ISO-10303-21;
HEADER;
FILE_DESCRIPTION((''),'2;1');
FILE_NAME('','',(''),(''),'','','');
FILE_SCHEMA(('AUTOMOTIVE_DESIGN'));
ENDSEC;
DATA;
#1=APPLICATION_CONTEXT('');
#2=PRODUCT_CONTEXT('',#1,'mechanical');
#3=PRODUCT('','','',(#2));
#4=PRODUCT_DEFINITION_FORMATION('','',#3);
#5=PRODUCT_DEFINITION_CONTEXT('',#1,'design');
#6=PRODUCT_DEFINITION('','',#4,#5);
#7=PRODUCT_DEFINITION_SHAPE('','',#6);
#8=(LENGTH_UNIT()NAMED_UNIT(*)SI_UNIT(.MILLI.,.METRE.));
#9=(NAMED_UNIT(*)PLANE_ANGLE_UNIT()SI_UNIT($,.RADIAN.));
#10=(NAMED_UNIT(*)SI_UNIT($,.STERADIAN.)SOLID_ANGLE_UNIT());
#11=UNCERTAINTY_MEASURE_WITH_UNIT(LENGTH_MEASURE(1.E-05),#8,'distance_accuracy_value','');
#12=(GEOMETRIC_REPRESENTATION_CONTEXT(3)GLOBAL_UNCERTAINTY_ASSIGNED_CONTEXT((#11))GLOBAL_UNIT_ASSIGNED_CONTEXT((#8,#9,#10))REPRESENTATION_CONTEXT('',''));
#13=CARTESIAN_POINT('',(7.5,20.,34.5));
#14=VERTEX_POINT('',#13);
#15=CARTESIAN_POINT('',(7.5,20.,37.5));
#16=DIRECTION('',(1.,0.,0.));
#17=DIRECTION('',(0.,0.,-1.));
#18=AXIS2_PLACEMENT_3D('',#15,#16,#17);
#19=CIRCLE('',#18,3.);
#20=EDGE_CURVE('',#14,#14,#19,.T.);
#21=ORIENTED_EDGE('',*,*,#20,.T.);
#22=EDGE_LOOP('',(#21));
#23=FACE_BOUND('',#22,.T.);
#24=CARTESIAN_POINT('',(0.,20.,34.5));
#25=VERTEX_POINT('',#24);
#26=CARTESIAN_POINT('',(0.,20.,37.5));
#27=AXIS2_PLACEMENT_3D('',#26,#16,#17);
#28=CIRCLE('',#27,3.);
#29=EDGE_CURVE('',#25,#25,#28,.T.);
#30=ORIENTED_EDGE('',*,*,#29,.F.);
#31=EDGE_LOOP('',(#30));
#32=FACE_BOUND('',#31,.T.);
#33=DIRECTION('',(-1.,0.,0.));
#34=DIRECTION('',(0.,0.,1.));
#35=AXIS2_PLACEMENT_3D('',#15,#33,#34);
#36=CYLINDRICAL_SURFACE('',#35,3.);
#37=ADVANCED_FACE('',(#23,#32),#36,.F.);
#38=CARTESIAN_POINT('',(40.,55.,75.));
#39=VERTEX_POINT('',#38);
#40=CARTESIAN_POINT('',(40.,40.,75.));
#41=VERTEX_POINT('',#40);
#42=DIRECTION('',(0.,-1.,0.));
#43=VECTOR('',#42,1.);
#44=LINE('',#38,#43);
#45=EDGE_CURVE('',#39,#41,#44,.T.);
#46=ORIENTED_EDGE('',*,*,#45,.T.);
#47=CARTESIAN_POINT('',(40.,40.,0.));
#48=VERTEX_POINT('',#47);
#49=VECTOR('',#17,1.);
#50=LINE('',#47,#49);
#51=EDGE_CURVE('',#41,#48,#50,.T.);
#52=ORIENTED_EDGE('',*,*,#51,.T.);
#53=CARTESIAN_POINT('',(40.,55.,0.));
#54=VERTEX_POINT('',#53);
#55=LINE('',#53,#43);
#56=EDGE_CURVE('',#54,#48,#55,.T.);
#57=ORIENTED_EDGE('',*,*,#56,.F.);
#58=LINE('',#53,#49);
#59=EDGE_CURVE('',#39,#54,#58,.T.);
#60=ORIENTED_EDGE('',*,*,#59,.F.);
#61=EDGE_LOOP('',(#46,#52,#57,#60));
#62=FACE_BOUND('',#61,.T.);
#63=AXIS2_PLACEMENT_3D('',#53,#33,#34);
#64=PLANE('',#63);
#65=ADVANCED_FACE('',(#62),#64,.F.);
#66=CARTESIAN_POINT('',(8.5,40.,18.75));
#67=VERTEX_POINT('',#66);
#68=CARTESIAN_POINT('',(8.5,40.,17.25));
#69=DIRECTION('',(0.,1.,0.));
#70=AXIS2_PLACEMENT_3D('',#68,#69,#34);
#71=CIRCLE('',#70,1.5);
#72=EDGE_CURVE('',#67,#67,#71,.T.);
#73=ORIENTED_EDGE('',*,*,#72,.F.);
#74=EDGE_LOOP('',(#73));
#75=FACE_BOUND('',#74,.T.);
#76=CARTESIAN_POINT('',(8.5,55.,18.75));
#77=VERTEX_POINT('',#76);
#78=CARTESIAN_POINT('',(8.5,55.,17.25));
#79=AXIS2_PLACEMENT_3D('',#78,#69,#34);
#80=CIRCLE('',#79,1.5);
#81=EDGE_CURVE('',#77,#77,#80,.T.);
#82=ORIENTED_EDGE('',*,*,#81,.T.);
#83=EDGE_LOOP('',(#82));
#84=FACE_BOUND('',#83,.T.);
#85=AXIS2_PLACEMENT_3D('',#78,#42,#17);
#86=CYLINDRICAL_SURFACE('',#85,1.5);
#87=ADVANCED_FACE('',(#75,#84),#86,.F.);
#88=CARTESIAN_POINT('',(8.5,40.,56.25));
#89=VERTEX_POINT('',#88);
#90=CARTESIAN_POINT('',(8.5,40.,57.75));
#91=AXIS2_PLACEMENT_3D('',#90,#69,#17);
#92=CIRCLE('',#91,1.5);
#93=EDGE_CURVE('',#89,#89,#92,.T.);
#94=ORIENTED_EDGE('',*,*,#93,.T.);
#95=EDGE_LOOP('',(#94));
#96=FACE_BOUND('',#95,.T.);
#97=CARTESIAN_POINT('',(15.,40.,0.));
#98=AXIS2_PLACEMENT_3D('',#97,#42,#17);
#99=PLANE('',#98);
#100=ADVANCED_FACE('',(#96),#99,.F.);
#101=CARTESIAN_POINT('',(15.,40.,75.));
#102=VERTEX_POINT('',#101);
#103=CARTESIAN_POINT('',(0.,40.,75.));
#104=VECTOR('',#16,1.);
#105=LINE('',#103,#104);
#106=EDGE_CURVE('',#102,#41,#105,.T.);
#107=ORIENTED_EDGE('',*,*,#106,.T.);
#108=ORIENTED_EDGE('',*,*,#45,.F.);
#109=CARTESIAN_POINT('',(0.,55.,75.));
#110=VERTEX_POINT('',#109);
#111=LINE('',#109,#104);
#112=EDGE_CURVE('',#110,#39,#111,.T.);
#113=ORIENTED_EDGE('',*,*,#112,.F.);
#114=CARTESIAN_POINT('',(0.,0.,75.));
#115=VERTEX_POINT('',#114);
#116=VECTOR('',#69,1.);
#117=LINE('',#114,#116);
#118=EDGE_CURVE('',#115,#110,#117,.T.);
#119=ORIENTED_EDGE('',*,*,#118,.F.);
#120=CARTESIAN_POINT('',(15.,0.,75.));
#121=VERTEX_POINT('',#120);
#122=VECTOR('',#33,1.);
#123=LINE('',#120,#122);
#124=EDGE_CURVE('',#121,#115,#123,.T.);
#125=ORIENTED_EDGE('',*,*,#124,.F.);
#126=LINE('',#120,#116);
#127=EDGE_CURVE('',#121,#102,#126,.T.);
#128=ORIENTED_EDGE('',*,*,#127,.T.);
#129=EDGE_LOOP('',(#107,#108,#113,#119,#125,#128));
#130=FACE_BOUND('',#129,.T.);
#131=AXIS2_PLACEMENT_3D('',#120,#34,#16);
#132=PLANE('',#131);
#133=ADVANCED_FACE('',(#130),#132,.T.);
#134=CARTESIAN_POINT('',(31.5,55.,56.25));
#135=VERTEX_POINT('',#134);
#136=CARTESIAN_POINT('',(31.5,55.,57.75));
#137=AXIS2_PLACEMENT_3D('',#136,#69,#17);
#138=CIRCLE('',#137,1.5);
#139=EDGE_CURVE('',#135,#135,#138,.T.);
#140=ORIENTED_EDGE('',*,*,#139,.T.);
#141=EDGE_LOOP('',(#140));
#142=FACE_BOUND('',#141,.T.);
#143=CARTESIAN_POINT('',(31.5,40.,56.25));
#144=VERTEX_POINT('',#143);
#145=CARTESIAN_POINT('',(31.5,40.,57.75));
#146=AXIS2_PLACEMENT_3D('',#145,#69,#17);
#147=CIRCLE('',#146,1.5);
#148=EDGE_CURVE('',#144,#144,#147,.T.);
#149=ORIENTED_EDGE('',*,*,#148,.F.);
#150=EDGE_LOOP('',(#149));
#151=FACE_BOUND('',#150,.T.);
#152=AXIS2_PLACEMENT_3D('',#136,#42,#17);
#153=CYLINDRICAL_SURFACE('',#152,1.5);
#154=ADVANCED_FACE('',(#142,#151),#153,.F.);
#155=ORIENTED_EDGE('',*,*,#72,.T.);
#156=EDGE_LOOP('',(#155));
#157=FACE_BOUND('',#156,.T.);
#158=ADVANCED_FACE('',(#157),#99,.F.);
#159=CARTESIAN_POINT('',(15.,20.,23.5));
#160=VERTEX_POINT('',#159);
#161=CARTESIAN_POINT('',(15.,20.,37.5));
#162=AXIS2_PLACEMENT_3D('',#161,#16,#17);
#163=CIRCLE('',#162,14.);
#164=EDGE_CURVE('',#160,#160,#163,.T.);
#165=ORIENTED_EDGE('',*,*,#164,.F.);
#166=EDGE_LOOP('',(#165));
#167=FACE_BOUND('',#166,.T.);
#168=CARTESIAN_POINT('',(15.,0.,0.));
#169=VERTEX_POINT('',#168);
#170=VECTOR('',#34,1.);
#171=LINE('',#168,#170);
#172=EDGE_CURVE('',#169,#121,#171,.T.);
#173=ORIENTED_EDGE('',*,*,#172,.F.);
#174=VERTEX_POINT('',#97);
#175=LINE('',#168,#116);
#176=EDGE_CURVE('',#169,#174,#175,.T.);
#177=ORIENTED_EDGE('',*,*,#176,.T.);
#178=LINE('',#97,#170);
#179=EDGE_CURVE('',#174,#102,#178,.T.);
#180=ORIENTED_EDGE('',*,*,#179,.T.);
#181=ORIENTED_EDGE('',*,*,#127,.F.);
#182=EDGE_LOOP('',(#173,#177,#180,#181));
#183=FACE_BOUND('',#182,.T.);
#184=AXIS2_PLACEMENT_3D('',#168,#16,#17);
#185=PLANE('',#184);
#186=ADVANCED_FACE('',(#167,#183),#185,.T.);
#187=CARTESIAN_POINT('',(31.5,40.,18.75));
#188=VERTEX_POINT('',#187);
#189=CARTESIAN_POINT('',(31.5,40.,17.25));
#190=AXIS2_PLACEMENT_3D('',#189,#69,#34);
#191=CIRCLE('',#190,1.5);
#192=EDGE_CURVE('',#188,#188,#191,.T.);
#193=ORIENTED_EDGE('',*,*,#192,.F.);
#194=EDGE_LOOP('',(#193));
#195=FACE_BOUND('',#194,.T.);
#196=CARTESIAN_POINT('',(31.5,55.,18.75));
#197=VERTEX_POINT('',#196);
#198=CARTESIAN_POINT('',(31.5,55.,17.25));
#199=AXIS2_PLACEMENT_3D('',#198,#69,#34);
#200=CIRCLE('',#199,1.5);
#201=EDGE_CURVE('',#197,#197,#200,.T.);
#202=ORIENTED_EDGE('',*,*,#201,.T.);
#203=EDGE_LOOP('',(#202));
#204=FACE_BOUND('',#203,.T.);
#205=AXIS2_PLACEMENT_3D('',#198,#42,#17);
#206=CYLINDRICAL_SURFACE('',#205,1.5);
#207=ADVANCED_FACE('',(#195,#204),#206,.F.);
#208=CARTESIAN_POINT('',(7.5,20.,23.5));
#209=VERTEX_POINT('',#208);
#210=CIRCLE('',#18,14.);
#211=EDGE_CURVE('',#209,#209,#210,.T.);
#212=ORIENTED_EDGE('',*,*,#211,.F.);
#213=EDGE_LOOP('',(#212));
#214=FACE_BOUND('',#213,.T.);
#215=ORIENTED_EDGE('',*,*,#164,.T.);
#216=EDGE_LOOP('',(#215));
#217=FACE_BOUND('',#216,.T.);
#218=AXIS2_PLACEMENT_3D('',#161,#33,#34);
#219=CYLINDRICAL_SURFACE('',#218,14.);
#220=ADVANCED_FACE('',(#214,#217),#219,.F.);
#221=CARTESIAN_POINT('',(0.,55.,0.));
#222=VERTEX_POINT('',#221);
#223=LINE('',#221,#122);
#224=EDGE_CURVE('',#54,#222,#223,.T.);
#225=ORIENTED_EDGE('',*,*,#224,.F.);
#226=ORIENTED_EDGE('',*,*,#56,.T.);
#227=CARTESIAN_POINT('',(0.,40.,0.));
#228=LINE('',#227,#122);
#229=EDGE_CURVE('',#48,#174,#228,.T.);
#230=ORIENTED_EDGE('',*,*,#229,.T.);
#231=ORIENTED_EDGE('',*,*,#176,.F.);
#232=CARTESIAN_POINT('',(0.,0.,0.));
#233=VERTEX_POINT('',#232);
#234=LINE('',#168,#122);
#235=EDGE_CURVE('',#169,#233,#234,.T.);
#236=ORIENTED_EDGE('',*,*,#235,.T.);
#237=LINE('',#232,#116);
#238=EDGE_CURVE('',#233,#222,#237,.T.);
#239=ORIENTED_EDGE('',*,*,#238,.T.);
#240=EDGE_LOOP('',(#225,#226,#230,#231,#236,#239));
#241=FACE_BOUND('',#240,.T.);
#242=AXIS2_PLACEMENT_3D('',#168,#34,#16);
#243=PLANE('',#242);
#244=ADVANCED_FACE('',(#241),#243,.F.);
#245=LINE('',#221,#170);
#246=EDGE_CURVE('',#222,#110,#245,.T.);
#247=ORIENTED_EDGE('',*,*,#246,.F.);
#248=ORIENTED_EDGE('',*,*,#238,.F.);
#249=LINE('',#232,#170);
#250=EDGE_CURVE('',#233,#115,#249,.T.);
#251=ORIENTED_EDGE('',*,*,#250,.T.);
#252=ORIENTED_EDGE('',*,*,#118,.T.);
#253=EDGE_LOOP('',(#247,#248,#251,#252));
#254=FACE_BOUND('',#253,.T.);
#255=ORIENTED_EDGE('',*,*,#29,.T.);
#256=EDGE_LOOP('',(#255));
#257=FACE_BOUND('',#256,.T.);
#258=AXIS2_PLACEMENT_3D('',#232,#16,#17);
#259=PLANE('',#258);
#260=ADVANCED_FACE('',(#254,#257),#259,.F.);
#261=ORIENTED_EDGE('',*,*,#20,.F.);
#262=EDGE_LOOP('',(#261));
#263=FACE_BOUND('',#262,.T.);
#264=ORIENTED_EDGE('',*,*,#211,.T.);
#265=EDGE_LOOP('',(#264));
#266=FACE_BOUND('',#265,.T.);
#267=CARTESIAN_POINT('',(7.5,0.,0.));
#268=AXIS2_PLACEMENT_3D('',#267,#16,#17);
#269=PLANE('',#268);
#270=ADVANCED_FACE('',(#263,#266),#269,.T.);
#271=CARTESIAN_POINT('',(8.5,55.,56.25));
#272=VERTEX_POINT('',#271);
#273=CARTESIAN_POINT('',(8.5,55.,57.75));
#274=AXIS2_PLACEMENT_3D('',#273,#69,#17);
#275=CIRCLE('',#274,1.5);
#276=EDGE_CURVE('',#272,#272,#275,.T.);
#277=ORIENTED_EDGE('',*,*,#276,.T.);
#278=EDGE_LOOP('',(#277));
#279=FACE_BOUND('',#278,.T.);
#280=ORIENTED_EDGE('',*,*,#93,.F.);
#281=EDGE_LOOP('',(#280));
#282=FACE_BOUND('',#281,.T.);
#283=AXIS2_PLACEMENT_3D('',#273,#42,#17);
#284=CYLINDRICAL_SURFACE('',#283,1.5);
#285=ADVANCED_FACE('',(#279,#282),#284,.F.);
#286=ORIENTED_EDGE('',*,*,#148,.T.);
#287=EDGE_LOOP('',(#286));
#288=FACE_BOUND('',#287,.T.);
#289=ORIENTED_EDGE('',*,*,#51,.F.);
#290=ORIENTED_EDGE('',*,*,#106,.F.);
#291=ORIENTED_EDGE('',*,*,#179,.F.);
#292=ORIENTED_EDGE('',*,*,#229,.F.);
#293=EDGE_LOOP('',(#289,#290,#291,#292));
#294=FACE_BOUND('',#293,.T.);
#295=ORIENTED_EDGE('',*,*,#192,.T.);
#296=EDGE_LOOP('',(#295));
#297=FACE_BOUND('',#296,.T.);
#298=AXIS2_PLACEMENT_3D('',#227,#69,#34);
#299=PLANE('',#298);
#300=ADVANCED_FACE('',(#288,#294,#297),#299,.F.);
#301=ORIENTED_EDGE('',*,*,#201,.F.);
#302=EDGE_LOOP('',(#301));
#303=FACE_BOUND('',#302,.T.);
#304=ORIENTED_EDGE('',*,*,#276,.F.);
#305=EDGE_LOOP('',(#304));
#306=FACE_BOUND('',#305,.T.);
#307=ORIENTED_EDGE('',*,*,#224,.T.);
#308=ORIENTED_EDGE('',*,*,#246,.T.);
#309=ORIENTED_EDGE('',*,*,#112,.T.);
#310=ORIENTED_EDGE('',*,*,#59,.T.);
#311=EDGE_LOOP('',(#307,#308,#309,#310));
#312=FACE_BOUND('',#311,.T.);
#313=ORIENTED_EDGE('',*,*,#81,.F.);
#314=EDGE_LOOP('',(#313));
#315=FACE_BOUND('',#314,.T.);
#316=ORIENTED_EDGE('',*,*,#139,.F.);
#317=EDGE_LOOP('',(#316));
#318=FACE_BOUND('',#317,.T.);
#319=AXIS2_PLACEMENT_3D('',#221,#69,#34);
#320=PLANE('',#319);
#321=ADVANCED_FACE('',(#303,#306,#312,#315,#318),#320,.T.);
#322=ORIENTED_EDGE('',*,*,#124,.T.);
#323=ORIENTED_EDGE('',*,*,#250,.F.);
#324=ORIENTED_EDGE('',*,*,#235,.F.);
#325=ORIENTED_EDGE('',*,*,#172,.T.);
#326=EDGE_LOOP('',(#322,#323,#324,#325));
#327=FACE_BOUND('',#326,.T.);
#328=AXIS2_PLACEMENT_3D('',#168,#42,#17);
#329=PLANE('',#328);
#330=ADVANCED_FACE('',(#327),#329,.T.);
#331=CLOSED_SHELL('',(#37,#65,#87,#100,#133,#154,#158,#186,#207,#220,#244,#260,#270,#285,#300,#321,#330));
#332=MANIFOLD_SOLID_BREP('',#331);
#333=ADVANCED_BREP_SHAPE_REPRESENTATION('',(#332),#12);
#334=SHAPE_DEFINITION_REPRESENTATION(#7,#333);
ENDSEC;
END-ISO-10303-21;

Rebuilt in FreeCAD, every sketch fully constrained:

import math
import FreeCAD as App
import Part
import Sketcher
Q = App.Units.Quantity

doc = App.newDocument("Part")
body = doc.addObject("PartDesign::Body", "Body")

sketch1 = doc.addObject("Sketcher::SketchObject", "Sketch")
body.addObject(sketch1)
sketch1.AttachmentSupport = (doc.YZ_Plane, [""])
sketch1.MapMode = "FlatFace"
sketch1.addGeometry([
    Part.LineSegment(App.Vector(40, 75, 0), App.Vector(0, 75, 0)),
    Part.LineSegment(App.Vector(0, 75, 0), App.Vector(0, 0, 0)),
    Part.LineSegment(App.Vector(0, 0, 0), App.Vector(40, 0, 0)),
    Part.LineSegment(App.Vector(40, 0, 0), App.Vector(40, 75, 0)),
    Part.ArcOfCircle(Part.Circle(App.Vector(20, 38, 0), App.Vector(0, 0, 1), 14), math.radians(0), math.radians(180)),
    Part.ArcOfCircle(Part.Circle(App.Vector(20, 37, 0), App.Vector(0, 0, 1), 14), math.radians(-90), math.radians(0)),
    Part.ArcOfCircle(Part.Circle(App.Vector(20, 37, 0), App.Vector(0, 0, 1), 14), math.radians(180), math.radians(270)),
], False)
sketch1.addConstraint([
    Sketcher.Constraint("Coincident", 0, 2, 1, 1),
    Sketcher.Constraint("Coincident", 1, 2, 2, 1),
    Sketcher.Constraint("Coincident", 2, 2, 3, 1),
    Sketcher.Constraint("Coincident", 3, 2, 0, 1),
    Sketcher.Constraint("Tangent", 4, 1, 5, 2),
    Sketcher.Constraint("Tangent", 5, 1, 6, 2),
    Sketcher.Constraint("Tangent", 6, 1, 4, 2),
    Sketcher.Constraint("Horizontal", 0),
    Sketcher.Constraint("Vertical", 1),
    Sketcher.Constraint("Horizontal", 2),
    Sketcher.Constraint("Vertical", 3),
    Sketcher.Constraint("Coincident", 1, 2, -1, 1),
    Sketcher.Constraint("Horizontal", 6, 3, 4, 1),
    Sketcher.Constraint("Horizontal", 4, 1, 6, 1),
    Sketcher.Constraint("Vertical", 6, 3, 5, 1),
    Sketcher.Constraint("Radius", 4, Q("14 mm")),
    Sketcher.Constraint("DistanceX", 0, 2, 0, 1, Q("40 mm")),
    Sketcher.Constraint("DistanceY", 1, 2, 1, 1, Q("75 mm")),
    Sketcher.Constraint("DistanceX", -1, 1, 4, 3, Q("20 mm")),
    Sketcher.Constraint("DistanceY", -1, 1, 4, 3, Q("37.5 mm")),
])
pad1 = doc.addObject("PartDesign::Pad", "Pad")
body.addObject(pad1)
pad1.Profile = sketch1
pad1.Length = 15

sketch2 = doc.addObject("Sketcher::SketchObject", "Sketch001")
body.addObject(sketch2)
sketch2.AttachmentSupport = (doc.YZ_Plane, [""])
sketch2.MapMode = "FlatFace"
sketch2.addGeometry([
    Part.ArcOfCircle(Part.Circle(App.Vector(20, 37.5, 0), App.Vector(0, 0, 1), 14), math.radians(-90), math.radians(0)),
    Part.ArcOfCircle(Part.Circle(App.Vector(20, 37.5, 0), App.Vector(0, 0, 1), 14), math.radians(0), math.radians(180)),
    Part.ArcOfCircle(Part.Circle(App.Vector(20, 37.5, 0), App.Vector(0, 0, 1), 14), math.radians(180), math.radians(270)),
    Part.ArcOfCircle(Part.Circle(App.Vector(20, 37.5, 0), App.Vector(0, 0, 1), 3), math.radians(180), math.radians(270)),
    Part.ArcOfCircle(Part.Circle(App.Vector(20, 37.5, 0), App.Vector(0, 0, 1), 3), math.radians(0), math.radians(180)),
    Part.ArcOfCircle(Part.Circle(App.Vector(20, 37.5, 0), App.Vector(0, 0, 1), 3), math.radians(-90), math.radians(0)),
], False)
sketch2.addConstraint([
    Sketcher.Constraint("Tangent", 0, 2, 1, 1),
    Sketcher.Constraint("Tangent", 1, 2, 2, 1),
    Sketcher.Constraint("Tangent", 2, 2, 0, 1),
    Sketcher.Constraint("Tangent", 3, 1, 4, 2),
    Sketcher.Constraint("Tangent", 4, 1, 5, 2),
    Sketcher.Constraint("Tangent", 5, 1, 3, 2),
    Sketcher.Constraint("Coincident", 3, 3, 0, 3),
    Sketcher.Constraint("Horizontal", 5, 3, 0, 2),
    Sketcher.Constraint("Horizontal", 0, 2, 1, 2),
    Sketcher.Constraint("Horizontal", 1, 2, 3, 1),
    Sketcher.Constraint("Horizontal", 3, 1, 4, 1),
    Sketcher.Constraint("Vertical", 5, 3, 2, 2),
    Sketcher.Constraint("Vertical", 2, 2, 5, 1),
    Sketcher.Constraint("Radius", 0, Q("14 mm")),
    Sketcher.Constraint("Radius", 3, Q("3 mm")),
    Sketcher.Constraint("DistanceX", -1, 1, 0, 3, Q("20 mm")),
    Sketcher.Constraint("DistanceY", -1, 1, 0, 3, Q("37.5 mm")),
])
pad2 = doc.addObject("PartDesign::Pad", "Pad001")
body.addObject(pad2)
pad2.Profile = sketch2
pad2.Length = 7.5

sketch3 = doc.addObject("Sketcher::SketchObject", "Sketch002")
body.addObject(sketch3)
sketch3.AttachmentSupport = (doc.XZ_Plane, [""])
sketch3.MapMode = "FlatFace"
sketch3.AttachmentOffset = App.Placement(App.Vector(0, 0, -40), App.Rotation())
sketch3.addGeometry([
    Part.LineSegment(App.Vector(0, 0, 0), App.Vector(0, 75, 0)),
    Part.LineSegment(App.Vector(0, 75, 0), App.Vector(40, 75, 0)),
    Part.LineSegment(App.Vector(40, 75, 0), App.Vector(40, 0, 0)),
    Part.LineSegment(App.Vector(40, 0, 0), App.Vector(0, 0, 0)),
    Part.Circle(App.Vector(8.5, 57.8, 0), App.Vector(0, 0, 1), 1.5),
    Part.Circle(App.Vector(31.5, 57.8, 0), App.Vector(0, 0, 1), 1.5),
    Part.Circle(App.Vector(8.5, 17.2, 0), App.Vector(0, 0, 1), 1.5),
    Part.Circle(App.Vector(31.5, 17.2, 0), App.Vector(0, 0, 1), 1.5),
], False)
sketch3.addConstraint([
    Sketcher.Constraint("Coincident", 0, 2, 1, 1),
    Sketcher.Constraint("Coincident", 1, 2, 2, 1),
    Sketcher.Constraint("Coincident", 2, 2, 3, 1),
    Sketcher.Constraint("Coincident", 3, 2, 0, 1),
    Sketcher.Constraint("Vertical", 0),
    Sketcher.Constraint("Horizontal", 1),
    Sketcher.Constraint("Vertical", 2),
    Sketcher.Constraint("Horizontal", 3),
    Sketcher.Constraint("Coincident", 3, 2, -1, 1),
    Sketcher.Constraint("Equal", 4, 5),
    Sketcher.Constraint("Equal", 5, 6),
    Sketcher.Constraint("Equal", 6, 7),
    Sketcher.Constraint("Horizontal", 4, 3, 5, 3),
    Sketcher.Constraint("Horizontal", 6, 3, 7, 3),
    Sketcher.Constraint("Vertical", 4, 3, 6, 3),
    Sketcher.Constraint("Vertical", 5, 3, 7, 3),
    Sketcher.Constraint("Diameter", 4, Q("3 mm")),
    Sketcher.Constraint("DistanceX", 1, 1, 1, 2, Q("40 mm")),
    Sketcher.Constraint("DistanceY", 0, 1, 0, 2, Q("75 mm")),
    Sketcher.Constraint("DistanceX", 4, 3, 5, 3, Q("23 mm")),
    Sketcher.Constraint("DistanceX", -1, 1, 4, 3, Q("8.5 mm")),
    Sketcher.Constraint("DistanceY", 6, 3, 4, 3, Q("40.5 mm")),
    Sketcher.Constraint("DistanceY", -1, 1, 4, 3, Q("57.75 mm")),
])
pad3 = doc.addObject("PartDesign::Pad", "Pad002")
body.addObject(pad3)
pad3.Profile = sketch3
pad3.Length = 15
pad3.Reversed = True

doc.recompute()
